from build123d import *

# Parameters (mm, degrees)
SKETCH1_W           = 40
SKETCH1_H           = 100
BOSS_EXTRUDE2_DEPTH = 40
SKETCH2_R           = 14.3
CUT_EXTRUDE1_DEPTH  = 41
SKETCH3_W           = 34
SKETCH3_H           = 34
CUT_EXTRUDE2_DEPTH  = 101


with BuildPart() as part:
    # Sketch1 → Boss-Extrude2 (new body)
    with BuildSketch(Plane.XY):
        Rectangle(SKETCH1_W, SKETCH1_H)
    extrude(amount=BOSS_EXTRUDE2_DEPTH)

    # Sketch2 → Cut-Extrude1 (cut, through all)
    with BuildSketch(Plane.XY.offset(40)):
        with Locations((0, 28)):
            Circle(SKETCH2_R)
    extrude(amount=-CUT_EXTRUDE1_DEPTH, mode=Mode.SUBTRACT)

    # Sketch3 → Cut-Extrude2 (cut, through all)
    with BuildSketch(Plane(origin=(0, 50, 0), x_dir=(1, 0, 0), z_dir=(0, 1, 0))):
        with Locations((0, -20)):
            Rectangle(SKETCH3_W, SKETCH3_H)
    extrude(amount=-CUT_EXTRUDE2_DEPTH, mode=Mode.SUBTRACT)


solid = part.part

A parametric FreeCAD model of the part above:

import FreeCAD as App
import Part
import Sketcher

doc = App.newDocument("Part")
params = doc.addObject("Spreadsheet::Sheet", "Params")
for row, (alias, value) in enumerate([
    ("sketch1_width", "40 mm"),
    ("sketch1_height", "100 mm"),
    ("pad1_length", "40 mm"),
    ("sketch2_diameter", "28.6 mm"),
    ("sketch3_width", "34 mm"),
], start=1):
    params.set(f"A{row}", alias)
    params.set(f"B{row}", "=" + value)
    params.setAlias(f"B{row}", alias)

body = doc.addObject("PartDesign::Body", "Body")

# Sketch on XY plane
sketch1 = doc.addObject("Sketcher::SketchObject", "Sketch")
body.addObject(sketch1)
sketch1.AttachmentSupport = (doc.XY_Plane, [""])
sketch1.MapMode = "FlatFace"
sketch1.addGeometry(Part.LineSegment(App.Vector(-20, 50, 0), App.Vector(-20, -50, 0)), False)
sketch1.addGeometry(Part.LineSegment(App.Vector(-20, -50, 0), App.Vector(20, -50, 0)), False)
sketch1.addGeometry(Part.LineSegment(App.Vector(20, -50, 0), App.Vector(20, 50, 0)), False)
sketch1.addGeometry(Part.LineSegment(App.Vector(20, 50, 0), App.Vector(-20, 50, 0)), False)
sketch1.addConstraint(Sketcher.Constraint("Coincident", 0, 2, 1, 1))
sketch1.addConstraint(Sketcher.Constraint("Coincident", 1, 2, 2, 1))
sketch1.addConstraint(Sketcher.Constraint("Coincident", 2, 2, 3, 1))
sketch1.addConstraint(Sketcher.Constraint("Coincident", 3, 2, 0, 1))
sketch1.addConstraint(Sketcher.Constraint("Vertical", 0))
sketch1.addConstraint(Sketcher.Constraint("Horizontal", 1))
sketch1.addConstraint(Sketcher.Constraint("Vertical", 2))
sketch1.addConstraint(Sketcher.Constraint("Horizontal", 3))
sketch1.addConstraint(Sketcher.Constraint("Symmetric", 0, 2, 2, 2, -1, 1))
sketch1.addConstraint(Sketcher.Constraint("DistanceX", 1, 1, 1, 2, 40.0))
sketch1.addConstraint(Sketcher.Constraint("DistanceY", 0, 2, 0, 1, 100.0))
sketch1.setExpression("Constraints[9]", "Params.sketch1_width")
sketch1.setExpression("Constraints[10]", "Params.sketch1_height")
pad1 = doc.addObject("PartDesign::Pad", "Pad")
body.addObject(pad1)
pad1.Profile = sketch1
pad1.setExpression("Length", "Params.pad1_length")

# Sketch on XY plane
sketch2 = doc.addObject("Sketcher::SketchObject", "Sketch001")
body.addObject(sketch2)
sketch2.AttachmentSupport = (doc.XY_Plane, [""])
sketch2.MapMode = "FlatFace"
sketch2.AttachmentOffset = App.Placement(App.Vector(0, 0, 40), App.Rotation())
sketch2.addGeometry(Part.Circle(App.Vector(0, 28, 0), App.Vector(0, 0, 1), 14.3), False)
sketch2.addConstraint(Sketcher.Constraint("PointOnObject", 0, 3, -2))
sketch2.addConstraint(Sketcher.Constraint("Diameter", 0, 28.6))
sketch2.addConstraint(Sketcher.Constraint("DistanceY", -1, 1, 0, 3, 28.0))
sketch2.setExpression("Constraints[1]", "Params.sketch2_diameter")
pocket1 = doc.addObject("PartDesign::Pocket", "Pocket")
body.addObject(pocket1)
pocket1.Profile = sketch2
pocket1.Type = "ThroughAll"

# Sketch on XZ plane
sketch3 = doc.addObject("Sketcher::SketchObject", "Sketch002")
body.addObject(sketch3)
sketch3.AttachmentSupport = (doc.XZ_Plane, [""])
sketch3.MapMode = "FlatFace"
sketch3.AttachmentOffset = App.Placement(App.Vector(0, 0, -50), App.Rotation())
sketch3.addGeometry(Part.LineSegment(App.Vector(-17, 3, 0), App.Vector(-17, 37, 0)), False)
sketch3.addGeometry(Part.LineSegment(App.Vector(-17, 37, 0), App.Vector(17, 37, 0)), False)
sketch3.addGeometry(Part.LineSegment(App.Vector(17, 37, 0), App.Vector(17, 3, 0)), False)
sketch3.addGeometry(Part.LineSegment(App.Vector(17, 3, 0), App.Vector(-17, 3, 0)), False)
sketch3.addConstraint(Sketcher.Constraint("Coincident", 0, 2, 1, 1))
sketch3.addConstraint(Sketcher.Constraint("Coincident", 1, 2, 2, 1))
sketch3.addConstraint(Sketcher.Constraint("Coincident", 2, 2, 3, 1))
sketch3.addConstraint(Sketcher.Constraint("Coincident", 3, 2, 0, 1))
sketch3.addConstraint(Sketcher.Constraint("Vertical", 0))
sketch3.addConstraint(Sketcher.Constraint("Horizontal", 1))
sketch3.addConstraint(Sketcher.Constraint("Vertical", 2))
sketch3.addConstraint(Sketcher.Constraint("Horizontal", 3))
sketch3.addConstraint(Sketcher.Constraint("Equal", 3, 0))
sketch3.addConstraint(Sketcher.Constraint("DistanceX", 1, 1, 1, 2, 34.0))
sketch3.addConstraint(Sketcher.Constraint("DistanceX", 0, 2, -1, 1, 17.0))
sketch3.addConstraint(Sketcher.Constraint("DistanceY", -1, 1, 0, 2, 37.0))
sketch3.setExpression("Constraints[9]", "Params.sketch3_width")
pocket2 = doc.addObject("PartDesign::Pocket", "Pocket001")
body.addObject(pocket2)
pocket2.Profile = sketch3
pocket2.Type = "ThroughAll"
pocket2.Reversed = True

doc.recompute()
